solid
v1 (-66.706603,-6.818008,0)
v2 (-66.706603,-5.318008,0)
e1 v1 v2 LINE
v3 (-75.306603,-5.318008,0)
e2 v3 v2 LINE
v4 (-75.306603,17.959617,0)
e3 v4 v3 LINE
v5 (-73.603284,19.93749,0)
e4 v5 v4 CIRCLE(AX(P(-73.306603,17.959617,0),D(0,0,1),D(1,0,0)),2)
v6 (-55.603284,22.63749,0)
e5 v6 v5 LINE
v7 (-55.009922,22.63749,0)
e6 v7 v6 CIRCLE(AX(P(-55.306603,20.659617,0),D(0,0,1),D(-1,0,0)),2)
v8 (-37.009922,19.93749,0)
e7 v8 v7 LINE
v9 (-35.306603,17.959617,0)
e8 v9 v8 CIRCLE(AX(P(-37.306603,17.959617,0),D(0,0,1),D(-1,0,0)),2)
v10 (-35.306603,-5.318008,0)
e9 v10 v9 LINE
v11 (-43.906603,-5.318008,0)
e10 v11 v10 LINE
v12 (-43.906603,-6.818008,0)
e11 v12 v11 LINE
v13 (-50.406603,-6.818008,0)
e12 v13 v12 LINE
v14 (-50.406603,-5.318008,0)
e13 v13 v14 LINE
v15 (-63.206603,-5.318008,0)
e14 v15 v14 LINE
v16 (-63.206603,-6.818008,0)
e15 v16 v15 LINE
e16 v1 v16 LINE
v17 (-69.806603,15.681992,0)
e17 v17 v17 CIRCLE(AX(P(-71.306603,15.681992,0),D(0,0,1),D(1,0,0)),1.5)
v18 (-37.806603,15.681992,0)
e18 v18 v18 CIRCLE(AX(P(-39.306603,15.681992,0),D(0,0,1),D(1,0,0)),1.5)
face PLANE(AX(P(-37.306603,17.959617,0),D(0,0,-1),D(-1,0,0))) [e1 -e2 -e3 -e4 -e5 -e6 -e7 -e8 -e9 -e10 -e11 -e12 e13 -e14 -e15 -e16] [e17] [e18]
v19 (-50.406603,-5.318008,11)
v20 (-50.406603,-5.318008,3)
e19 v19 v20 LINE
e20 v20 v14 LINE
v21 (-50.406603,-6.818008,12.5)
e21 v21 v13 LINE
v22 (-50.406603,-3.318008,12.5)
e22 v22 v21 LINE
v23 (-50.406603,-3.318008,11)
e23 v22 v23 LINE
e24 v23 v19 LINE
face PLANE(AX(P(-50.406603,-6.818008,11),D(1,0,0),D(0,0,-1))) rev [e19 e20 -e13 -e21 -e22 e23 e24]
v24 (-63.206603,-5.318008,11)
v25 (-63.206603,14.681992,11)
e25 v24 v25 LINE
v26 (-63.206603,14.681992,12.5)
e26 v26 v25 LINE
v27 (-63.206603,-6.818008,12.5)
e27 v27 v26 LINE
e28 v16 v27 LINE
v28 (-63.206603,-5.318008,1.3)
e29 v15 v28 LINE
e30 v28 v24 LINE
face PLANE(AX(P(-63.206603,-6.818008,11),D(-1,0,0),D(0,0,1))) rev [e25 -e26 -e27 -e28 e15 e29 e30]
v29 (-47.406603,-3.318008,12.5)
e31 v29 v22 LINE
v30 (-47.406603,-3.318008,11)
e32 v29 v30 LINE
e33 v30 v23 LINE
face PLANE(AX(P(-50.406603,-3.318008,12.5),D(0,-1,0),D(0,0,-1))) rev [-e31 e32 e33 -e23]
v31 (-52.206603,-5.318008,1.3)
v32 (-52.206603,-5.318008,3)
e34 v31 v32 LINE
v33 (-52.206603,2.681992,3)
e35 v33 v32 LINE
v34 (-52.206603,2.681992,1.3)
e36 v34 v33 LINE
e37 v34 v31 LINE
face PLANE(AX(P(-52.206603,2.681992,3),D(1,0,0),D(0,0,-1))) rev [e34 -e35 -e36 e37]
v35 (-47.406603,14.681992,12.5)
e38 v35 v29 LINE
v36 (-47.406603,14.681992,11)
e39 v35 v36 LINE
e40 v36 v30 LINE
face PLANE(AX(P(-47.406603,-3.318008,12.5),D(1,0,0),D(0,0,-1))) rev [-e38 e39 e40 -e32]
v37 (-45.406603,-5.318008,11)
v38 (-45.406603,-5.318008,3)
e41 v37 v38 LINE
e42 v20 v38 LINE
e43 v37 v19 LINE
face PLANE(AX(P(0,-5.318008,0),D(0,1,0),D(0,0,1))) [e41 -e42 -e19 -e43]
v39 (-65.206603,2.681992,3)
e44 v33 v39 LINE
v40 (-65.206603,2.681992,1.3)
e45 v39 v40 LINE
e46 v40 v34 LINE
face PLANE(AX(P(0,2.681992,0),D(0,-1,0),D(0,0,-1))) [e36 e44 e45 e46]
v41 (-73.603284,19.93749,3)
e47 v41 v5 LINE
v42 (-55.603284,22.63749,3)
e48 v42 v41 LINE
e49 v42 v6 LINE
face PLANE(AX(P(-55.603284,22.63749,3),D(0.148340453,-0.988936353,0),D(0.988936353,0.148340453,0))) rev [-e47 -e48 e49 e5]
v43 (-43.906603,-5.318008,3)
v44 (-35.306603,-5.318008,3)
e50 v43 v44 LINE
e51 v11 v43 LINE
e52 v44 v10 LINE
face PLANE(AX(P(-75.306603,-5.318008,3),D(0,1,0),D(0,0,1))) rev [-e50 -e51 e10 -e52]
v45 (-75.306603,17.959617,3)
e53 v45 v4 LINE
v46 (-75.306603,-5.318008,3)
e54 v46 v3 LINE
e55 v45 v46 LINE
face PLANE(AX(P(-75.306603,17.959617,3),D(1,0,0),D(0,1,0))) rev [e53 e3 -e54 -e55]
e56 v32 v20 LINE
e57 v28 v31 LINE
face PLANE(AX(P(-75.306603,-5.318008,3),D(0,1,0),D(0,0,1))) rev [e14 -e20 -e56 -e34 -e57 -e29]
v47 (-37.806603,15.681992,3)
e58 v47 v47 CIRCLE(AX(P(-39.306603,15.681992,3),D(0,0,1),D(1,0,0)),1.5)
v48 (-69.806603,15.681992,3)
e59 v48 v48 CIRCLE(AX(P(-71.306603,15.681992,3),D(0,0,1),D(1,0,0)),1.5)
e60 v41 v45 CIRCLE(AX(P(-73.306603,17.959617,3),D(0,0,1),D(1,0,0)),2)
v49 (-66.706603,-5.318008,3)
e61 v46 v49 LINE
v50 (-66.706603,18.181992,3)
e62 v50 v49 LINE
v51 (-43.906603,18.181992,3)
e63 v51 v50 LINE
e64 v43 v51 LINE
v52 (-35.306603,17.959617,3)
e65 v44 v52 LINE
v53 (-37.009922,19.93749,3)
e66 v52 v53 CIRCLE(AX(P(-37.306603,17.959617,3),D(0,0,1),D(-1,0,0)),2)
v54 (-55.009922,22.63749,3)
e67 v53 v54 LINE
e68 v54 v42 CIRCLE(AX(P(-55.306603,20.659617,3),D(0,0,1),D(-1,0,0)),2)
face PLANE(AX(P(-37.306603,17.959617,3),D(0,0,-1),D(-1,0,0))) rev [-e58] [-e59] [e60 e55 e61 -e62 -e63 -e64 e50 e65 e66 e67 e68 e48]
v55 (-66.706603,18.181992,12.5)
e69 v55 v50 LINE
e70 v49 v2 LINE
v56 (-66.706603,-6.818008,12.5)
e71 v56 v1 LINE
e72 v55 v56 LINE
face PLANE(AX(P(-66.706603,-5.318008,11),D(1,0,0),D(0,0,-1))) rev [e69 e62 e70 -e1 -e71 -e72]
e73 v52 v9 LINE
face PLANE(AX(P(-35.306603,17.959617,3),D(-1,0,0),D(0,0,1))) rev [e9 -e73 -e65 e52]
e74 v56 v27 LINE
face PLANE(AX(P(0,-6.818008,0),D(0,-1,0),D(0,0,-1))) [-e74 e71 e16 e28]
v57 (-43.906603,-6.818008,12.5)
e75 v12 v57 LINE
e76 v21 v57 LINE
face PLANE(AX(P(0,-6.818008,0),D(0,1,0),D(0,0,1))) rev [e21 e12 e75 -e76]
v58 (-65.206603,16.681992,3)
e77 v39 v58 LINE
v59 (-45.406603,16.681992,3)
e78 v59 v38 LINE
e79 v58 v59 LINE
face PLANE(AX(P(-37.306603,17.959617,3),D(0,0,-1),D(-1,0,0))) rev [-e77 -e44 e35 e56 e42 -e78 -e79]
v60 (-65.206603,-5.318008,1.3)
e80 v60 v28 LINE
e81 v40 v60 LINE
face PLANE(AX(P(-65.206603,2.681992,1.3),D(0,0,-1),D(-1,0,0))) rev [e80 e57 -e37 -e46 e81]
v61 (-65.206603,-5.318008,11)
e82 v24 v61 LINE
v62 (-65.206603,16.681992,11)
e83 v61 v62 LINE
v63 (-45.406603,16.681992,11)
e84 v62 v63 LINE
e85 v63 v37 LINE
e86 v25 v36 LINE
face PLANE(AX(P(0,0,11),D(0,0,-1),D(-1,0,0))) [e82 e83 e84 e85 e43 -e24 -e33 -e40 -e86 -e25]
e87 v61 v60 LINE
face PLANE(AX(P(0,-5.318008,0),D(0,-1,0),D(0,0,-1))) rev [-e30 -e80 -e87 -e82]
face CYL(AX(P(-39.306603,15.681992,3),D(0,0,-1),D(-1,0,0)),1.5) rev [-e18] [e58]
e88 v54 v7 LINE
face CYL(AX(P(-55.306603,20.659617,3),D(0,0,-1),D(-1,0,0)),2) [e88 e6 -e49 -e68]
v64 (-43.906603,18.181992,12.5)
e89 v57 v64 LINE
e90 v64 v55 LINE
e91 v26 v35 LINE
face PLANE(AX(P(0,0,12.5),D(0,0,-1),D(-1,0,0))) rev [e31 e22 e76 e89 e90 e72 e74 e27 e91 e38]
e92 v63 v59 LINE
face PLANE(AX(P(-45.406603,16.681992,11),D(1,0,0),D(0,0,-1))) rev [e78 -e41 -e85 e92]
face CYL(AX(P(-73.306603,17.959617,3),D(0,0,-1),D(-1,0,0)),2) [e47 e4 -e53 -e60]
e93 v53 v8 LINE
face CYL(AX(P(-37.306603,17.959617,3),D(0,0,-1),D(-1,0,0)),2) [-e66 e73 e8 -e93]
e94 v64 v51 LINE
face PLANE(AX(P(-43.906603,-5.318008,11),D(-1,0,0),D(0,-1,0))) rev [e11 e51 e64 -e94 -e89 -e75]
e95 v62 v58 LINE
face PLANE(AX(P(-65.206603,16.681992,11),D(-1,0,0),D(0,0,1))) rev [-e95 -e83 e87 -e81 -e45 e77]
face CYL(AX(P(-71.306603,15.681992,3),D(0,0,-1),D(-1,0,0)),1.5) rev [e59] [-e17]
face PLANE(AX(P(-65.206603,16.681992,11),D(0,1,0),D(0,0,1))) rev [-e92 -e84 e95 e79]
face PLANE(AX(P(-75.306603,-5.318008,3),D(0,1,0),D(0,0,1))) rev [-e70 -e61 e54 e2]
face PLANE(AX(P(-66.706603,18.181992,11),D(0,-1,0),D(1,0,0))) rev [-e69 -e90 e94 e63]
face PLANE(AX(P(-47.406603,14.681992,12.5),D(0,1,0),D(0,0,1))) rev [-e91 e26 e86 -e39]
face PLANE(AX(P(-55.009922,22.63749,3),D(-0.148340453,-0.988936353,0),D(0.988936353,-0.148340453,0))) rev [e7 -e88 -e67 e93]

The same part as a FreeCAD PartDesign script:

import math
import FreeCAD as App
import Part
import Sketcher
from FreeCAD import Vector
Q = App.Units.Quantity

doc = App.newDocument("Part")
params = doc.addObject("Spreadsheet::Sheet", "Params")
for row, (alias, value) in enumerate([
    ("sketch1_diameter", "3 mm"),
    ("sketch1_radius", "2 mm"),
    ("sketch1_width", "40 mm"),
    ("pad1_length", "3 mm"),
    ("sketch2_height", "22 mm"),
    ("sketch2_width", "1.5 mm"),
    ("sketch2_width2", "19.8 mm"),
    ("sketch2_height2", "23.5 mm"),
    ("pad2_length", "8 mm"),
    ("sketch3_width", "13 mm"),
    ("sketch3_height", "1.7 mm"),
    ("pocket1_length", "8 mm"),
    ("sketch4_height", "11 mm"),
    ("sketch4_width", "3.5 mm"),
    ("sketch4_width2", "6.5 mm"),
    ("pad3_length", "1.5 mm"),
    ("sketch5_width", "3 mm"),
    ("sketch5_height", "18 mm"),
    ("sketch5_height2", "25 mm"),
    ("sketch5_width2", "15.8 mm"),
    ("sketch5_width3", "6.5 mm"),
    ("pad4_length", "1.5 mm"),
], start=1):
    params.set(f"A{row}", alias)
    params.set(f"B{row}", "=" + value)
    params.setAlias(f"B{row}", alias)

body = doc.addObject("PartDesign::Body", "Body")

sketch1 = body.newObject("Sketcher::SketchObject", "Sketch")
sketch1.AttachmentSupport = (doc.getObject("XY_Plane"), [""])
sketch1.MapMode = "FlatFace"
sketch1.addGeometry(Part.LineSegment(Vector(-55.6, 22.6, 0), Vector(-73.6, 19.9, 0)), False)
sketch1.addGeometry(Part.ArcOfCircle(Part.Circle(Vector(-73.3, 18, 0), Vector(0, 0, 1), 2), math.radians(99), math.radians(180)), False)
sketch1.addGeometry(Part.LineSegment(Vector(-75.3, 18, 0), Vector(-75.3, -5.3, 0)), False)
sketch1.addGeometry(Part.LineSegment(Vector(-75.3, -5.3, 0), Vector(-35.3, -5.3, 0)), False)
sketch1.addGeometry(Part.LineSegment(Vector(-35.3, -5.3, 0), Vector(-35.3, 18, 0)), False)
sketch1.addGeometry(Part.ArcOfCircle(Part.Circle(Vector(-37.3, 18, 0), Vector(0, 0, 1), 2), math.radians(0), math.radians(81)), False)
sketch1.addGeometry(Part.LineSegment(Vector(-37, 19.9, 0), Vector(-55, 22.6, 0)), False)
sketch1.addGeometry(Part.ArcOfCircle(Part.Circle(Vector(-55.3, 20.7, 0), Vector(0, 0, 1), 2), math.radians(81.47), math.radians(98.53)), False)
sketch1.addGeometry(Part.Circle(Vector(-71.3, 15.7, 0), Vector(0, 0, 1), 1.5), False)
sketch1.addGeometry(Part.Circle(Vector(-39.3, 15.7, 0), Vector(0, 0, 1), 1.5), False)
sketch1.addConstraint(Sketcher.Constraint("Tangent", 0, 2, 1, 1))
sketch1.addConstraint(Sketcher.Constraint("Tangent", 1, 2, 2, 1))
sketch1.addConstraint(Sketcher.Constraint("Coincident", 2, 2, 3, 1))
sketch1.addConstraint(Sketcher.Constraint("Coincident", 3, 2, 4, 1))
sketch1.addConstraint(Sketcher.Constraint("Tangent", 4, 2, 5, 1))
sketch1.addConstraint(Sketcher.Constraint("Tangent", 5, 2, 6, 1))
sketch1.addConstraint(Sketcher.Constraint("Tangent", 6, 2, 7, 1))
sketch1.addConstraint(Sketcher.Constraint("Tangent", 7, 2, 0, 1))
sketch1.addConstraint(Sketcher.Constraint("Vertical", 2))
sketch1.addConstraint(Sketcher.Constraint("Horizontal", 3))
sketch1.addConstraint(Sketcher.Constraint("Vertical", 4))
sketch1.addConstraint(Sketcher.Constraint("Equal", 1, 5))
sketch1.addConstraint(Sketcher.Constraint("Equal", 5, 7))
sketch1.addConstraint(Sketcher.Constraint("Equal", 8, 9))
sketch1.addConstraint(Sketcher.Constraint("Horizontal", 1, 3, 5, 3))
sketch1.addConstraint(Sketcher.Constraint("Horizontal", 8, 3, 9, 3))
sketch1.addConstraint(Sketcher.Constraint("Equal", 0, 6))
sketch1.addConstraint(Sketcher.Constraint("Diameter", 8, Q("3 mm")))
sketch1.addConstraint(Sketcher.Constraint("Radius", 1, Q("2 mm")))
sketch1.addConstraint(Sketcher.Constraint("DistanceX", 3, 1, 3, 2, Q("40 mm")))
sketch1.addConstraint(Sketcher.Constraint("DistanceX", 1, 3, 8, 3, Q("2 mm")))
sketch1.addConstraint(Sketcher.Constraint("DistanceX", 9, 3, 5, 3, Q("2 mm")))
sketch1.addConstraint(Sketcher.Constraint("DistanceY", 2, 2, 8, 3, Q("21 mm")))
sketch1.addConstraint(Sketcher.Constraint("DistanceY", 1, 3, 7, 3, Q("2.7 mm")))
sketch1.addConstraint(Sketcher.Constraint("DistanceY", 2, 2, 2, 1, Q("23.277625 mm")))
sketch1.addConstraint(Sketcher.Constraint("DistanceY", -1, 1, 0, 2, Q("19.93749 mm")))
sketch1.addConstraint(Sketcher.Constraint("DistanceX", 5, 2, -1, 1, Q("37.009922 mm")))
sketch1.setExpression("Constraints[17]", "Params.sketch1_diameter")
sketch1.setExpression("Constraints[18]", "Params.sketch1_radius")
sketch1.setExpression("Constraints[19]", "Params.sketch1_width")
pad1 = body.newObject("PartDesign::Pad", "Pad")
pad1.Profile = sketch1
pad1.setExpression("Length", "Params.pad1_length")

sketch2 = body.newObject("Sketcher::SketchObject", "Sketch001")
sketch2.AttachmentSupport = (doc.getObject("XY_Plane"), [""])
sketch2.MapMode = "FlatFace"
sketch2.AttachmentOffset = App.Placement(Vector(0, 0, 3), App.Rotation())
sketch2.addGeometry(Part.LineSegment(Vector(-66.7, -5.3, 0), Vector(-65.2, -5.3, 0)), False)
sketch2.addGeometry(Part.LineSegment(Vector(-65.2, -5.3, 0), Vector(-65.2, 16.7, 0)), False)
sketch2.addGeometry(Part.LineSegment(Vector(-65.2, 16.7, 0), Vector(-45.4, 16.7, 0)), False)
sketch2.addGeometry(Part.LineSegment(Vector(-45.4, 16.7, 0), Vector(-45.4, -5.3, 0)), False)
sketch2.addGeometry(Part.LineSegment(Vector(-45.4, -5.3, 0), Vector(-43.9, -5.3, 0)), False)
sketch2.addGeometry(Part.LineSegment(Vector(-43.9, -5.3, 0), Vector(-43.9, 18.2, 0)), False)
sketch2.addGeometry(Part.LineSegment(Vector(-43.9, 18.2, 0), Vector(-66.7, 18.2, 0)), False)
sketch2.addGeometry(Part.LineSegment(Vector(-66.7, 18.2, 0), Vector(-66.7, -5.3, 0)), False)
sketch2.addConstraint(Sketcher.Constraint("Coincident", 0, 2, 1, 1))
sketch2.addConstraint(Sketcher.Constraint("Coincident", 1, 2, 2, 1))
sketch2.addConstraint(Sketcher.Constraint("Coincident", 2, 2, 3, 1))
sketch2.addConstraint(Sketcher.Constraint("Coincident", 3, 2, 4, 1))
sketch2.addConstraint(Sketcher.Constraint("Coincident", 4, 2, 5, 1))
sketch2.addConstraint(Sketcher.Constraint("Coincident", 5, 2, 6, 1))
sketch2.addConstraint(Sketcher.Constraint("Coincident", 6, 2, 7, 1))
sketch2.addConstraint(Sketcher.Constraint("Coincident", 7, 2, 0, 1))
sketch2.addConstraint(Sketcher.Constraint("Horizontal", 0))
sketch2.addConstraint(Sketcher.Constraint("Vertical", 1))
sketch2.addConstraint(Sketcher.Constraint("Horizontal", 2))
sketch2.addConstraint(Sketcher.Constraint("Vertical", 3))
sketch2.addConstraint(Sketcher.Constraint("Horizontal", 4))
sketch2.addConstraint(Sketcher.Constraint("Vertical", 5))
sketch2.addConstraint(Sketcher.Constraint("Horizontal", 6))
sketch2.addConstraint(Sketcher.Constraint("Vertical", 7))
sketch2.addConstraint(Sketcher.Constraint("Horizontal", 0, 2, 3, 2))
sketch2.addConstraint(Sketcher.Constraint("Equal", 0, 4))
sketch2.addConstraint(Sketcher.Constraint("DistanceY", 1, 1, 1, 2, Q("22 mm")))
sketch2.addConstraint(Sketcher.Constraint("DistanceX", 0, 1, 0, 2, Q("1.5 mm")))
sketch2.addConstraint(Sketcher.Constraint("DistanceX", 2, 1, 2, 2, Q("19.8 mm")))
sketch2.addConstraint(Sketcher.Constraint("DistanceY", 5, 1, 5, 2, Q("23.5 mm")))
sketch2.addConstraint(Sketcher.Constraint("DistanceX", 0, 2, -1, 1, Q("65.206603 mm")))
sketch2.addConstraint(Sketcher.Constraint("DistanceY", 0, 2, -1, 1, Q("5.318008 mm")))
sketch2.setExpression("Constraints[18]", "Params.sketch2_height")
sketch2.setExpression("Constraints[19]", "Params.sketch2_width")
sketch2.setExpression("Constraints[20]", "Params.sketch2_width2")
sketch2.setExpression("Constraints[21]", "Params.sketch2_height2")
pad2 = body.newObject("PartDesign::Pad", "Pad001")
pad2.Profile = sketch2
pad2.setExpression("Length", "Params.pad2_length")

sketch3 = body.newObject("Sketcher::SketchObject", "Sketch002")
sketch3.AttachmentSupport = (doc.getObject("XZ_Plane"), [""])
sketch3.MapMode = "FlatFace"
sketch3.AttachmentOffset = App.Placement(Vector(0, 0, 5.318008), App.Rotation())
sketch3.addGeometry(Part.LineSegment(Vector(-65.2, 3, 0), Vector(-65.2, 1.3, 0)), False)
sketch3.addGeometry(Part.LineSegment(Vector(-65.2, 1.3, 0), Vector(-52.2, 1.3, 0)), False)
sketch3.addGeometry(Part.LineSegment(Vector(-52.2, 1.3, 0), Vector(-52.2, 3, 0)), False)
sketch3.addGeometry(Part.LineSegment(Vector(-52.2, 3, 0), Vector(-65.2, 3, 0)), False)
sketch3.addConstraint(Sketcher.Constraint("Coincident", 0, 2, 1, 1))
sketch3.addConstraint(Sketcher.Constraint("Coincident", 1, 2, 2, 1))
sketch3.addConstraint(Sketcher.Constraint("Coincident", 2, 2, 3, 1))
sketch3.addConstraint(Sketcher.Constraint("Coincident", 3, 2, 0, 1))
sketch3.addConstraint(Sketcher.Constraint("Vertical", 0))
sketch3.addConstraint(Sketcher.Constraint("Horizontal", 1))
sketch3.addConstraint(Sketcher.Constraint("Vertical", 2))
sketch3.addConstraint(Sketcher.Constraint("Horizontal", 3))
sketch3.addConstraint(Sketcher.Constraint("DistanceX", 1, 1, 1, 2, Q("13 mm")))
sketch3.addConstraint(Sketcher.Constraint("DistanceY", 0, 2, 0, 1, Q("1.7 mm")))
sketch3.addConstraint(Sketcher.Constraint("DistanceY", -1, 1, 2, 2, Q("3 mm")))
sketch3.addConstraint(Sketcher.Constraint("DistanceX", 0, 2, -1, 1, Q("65.206603 mm")))
sketch3.setExpression("Constraints[8]", "Params.sketch3_width")
sketch3.setExpression("Constraints[9]", "Params.sketch3_height")
pocket1 = body.newObject("PartDesign::Pocket", "Pocket")
pocket1.Profile = sketch3
pocket1.setExpression("Length", "Params.pocket1_length")

sketch4 = body.newObject("Sketcher::SketchObject", "Sketch003")
sketch4.AttachmentSupport = (doc.getObject("XZ_Plane"), [""])
sketch4.MapMode = "FlatFace"
sketch4.AttachmentOffset = App.Placement(Vector(0, 0, 5.318008), App.Rotation())
sketch4.addGeometry(Part.LineSegment(Vector(-66.7, 11, 0), Vector(-66.7, 0, 0)), False)
sketch4.addGeometry(Part.LineSegment(Vector(-66.7, 0, 0), Vector(-63.2, 0, 0)), False)
sketch4.addGeometry(Part.LineSegment(Vector(-63.2, 0, 0), Vector(-63.2, 11, 0)), False)
sketch4.addGeometry(Part.LineSegment(Vector(-63.2, 11, 0), Vector(-66.7, 11, 0)), False)
sketch4.addGeometry(Part.LineSegment(Vector(-50.4, 11, 0), Vector(-50.4, 0, 0)), False)
sketch4.addGeometry(Part.LineSegment(Vector(-50.4, 0, 0), Vector(-43.9, 0, 0)), False)
sketch4.addGeometry(Part.LineSegment(Vector(-43.9, 0, 0), Vector(-43.9, 11, 0)), False)
sketch4.addGeometry(Part.LineSegment(Vector(-43.9, 11, 0), Vector(-50.4, 11, 0)), False)
sketch4.addConstraint(Sketcher.Constraint("Coincident", 0, 2, 1, 1))
sketch4.addConstraint(Sketcher.Constraint("Coincident", 1, 2, 2, 1))
sketch4.addConstraint(Sketcher.Constraint("Coincident", 2, 2, 3, 1))
sketch4.addConstraint(Sketcher.Constraint("Coincident", 3, 2, 0, 1))
sketch4.addConstraint(Sketcher.Constraint("Coincident", 4, 2, 5, 1))
sketch4.addConstraint(Sketcher.Constraint("Coincident", 5, 2, 6, 1))
sketch4.addConstraint(Sketcher.Constraint("Coincident", 6, 2, 7, 1))
sketch4.addConstraint(Sketcher.Constraint("Coincident", 7, 2, 4, 1))
sketch4.addConstraint(Sketcher.Constraint("Vertical", 0))
sketch4.addConstraint(Sketcher.Constraint("Horizontal", 1))
sketch4.addConstraint(Sketcher.Constraint("Vertical", 2))
sketch4.addConstraint(Sketcher.Constraint("Horizontal", 3))
sketch4.addConstraint(Sketcher.Constraint("Vertical", 4))
sketch4.addConstraint(Sketcher.Constraint("Horizontal", 5))
sketch4.addConstraint(Sketcher.Constraint("Vertical", 6))
sketch4.addConstraint(Sketcher.Constraint("Horizontal", 7))
sketch4.addConstraint(Sketcher.Constraint("PointOnObject", 0, 2, -1))
sketch4.addConstraint(Sketcher.Constraint("PointOnObject", 4, 2, -1))
sketch4.addConstraint(Sketcher.Constraint("Horizontal", 3, 2, 6, 2))
sketch4.addConstraint(Sketcher.Constraint("DistanceY", 0, 2, 0, 1, Q("11 mm")))
sketch4.addConstraint(Sketcher.Constraint("DistanceX", 1, 1, 1, 2, Q("3.5 mm")))
sketch4.addConstraint(Sketcher.Constraint("DistanceX", 5, 1, 5, 2, Q("6.5 mm")))
sketch4.addConstraint(Sketcher.Constraint("DistanceX", 1, 2, 4, 2, Q("12.8 mm")))
sketch4.addConstraint(Sketcher.Constraint("DistanceX", 0, 2, -1, 1, Q("66.706603 mm")))
sketch4.setExpression("Constraints[19]", "Params.sketch4_height")
sketch4.setExpression("Constraints[20]", "Params.sketch4_width")
sketch4.setExpression("Constraints[21]", "Params.sketch4_width2")
pad3 = body.newObject("PartDesign::Pad", "Pad002")
pad3.Profile = sketch4
pad3.setExpression("Length", "Params.pad3_length")

sketch5 = body.newObject("Sketcher::SketchObject", "Sketch004")
sketch5.AttachmentSupport = (doc.getObject("XY_Plane"), [""])
sketch5.MapMode = "FlatFace"
sketch5.AttachmentOffset = App.Placement(Vector(0, 0, 11), App.Rotation())
sketch5.addGeometry(Part.LineSegment(Vector(-63.2, -6.8, 0), Vector(-63.2, 14.7, 0)), False)
sketch5.addGeometry(Part.LineSegment(Vector(-63.2, 14.7, 0), Vector(-47.4, 14.7, 0)), False)
sketch5.addGeometry(Part.LineSegment(Vector(-47.4, 14.7, 0), Vector(-47.4, -3.3, 0)), False)
sketch5.addGeometry(Part.LineSegment(Vector(-47.4, -3.3, 0), Vector(-50.4, -3.3, 0)), False)
sketch5.addGeometry(Part.LineSegment(Vector(-50.4, -3.3, 0), Vector(-50.4, -6.8, 0)), False)
sketch5.addGeometry(Part.LineSegment(Vector(-50.4, -6.8, 0), Vector(-43.9, -6.8, 0)), False)
sketch5.addGeometry(Part.LineSegment(Vector(-43.9, -6.8, 0), Vector(-43.9, 18.2, 0)), False)
sketch5.addGeometry(Part.LineSegment(Vector(-43.9, 18.2, 0), Vector(-66.7, 18.2, 0)), False)
sketch5.addGeometry(Part.LineSegment(Vector(-66.7, 18.2, 0), Vector(-66.7, -6.8, 0)), False)
sketch5.addGeometry(Part.LineSegment(Vector(-66.7, -6.8, 0), Vector(-63.2, -6.8, 0)), False)
sketch5.addConstraint(Sketcher.Constraint("Coincident", 0, 2, 1, 1))
sketch5.addConstraint(Sketcher.Constraint("Coincident", 1, 2, 2, 1))
sketch5.addConstraint(Sketcher.Constraint("Coincident", 2, 2, 3, 1))
sketch5.addConstraint(Sketcher.Constraint("Coincident", 3, 2, 4, 1))
sketch5.addConstraint(Sketcher.Constraint("Coincident", 4, 2, 5, 1))
sketch5.addConstraint(Sketcher.Constraint("Coincident", 5, 2, 6, 1))
sketch5.addConstraint(Sketcher.Constraint("Coincident", 6, 2, 7, 1))
sketch5.addConstraint(Sketcher.Constraint("Coincident", 7, 2, 8, 1))
sketch5.addConstraint(Sketcher.Constraint("Coincident", 8, 2, 9, 1))
sketch5.addConstraint(Sketcher.Constraint("Coincident", 9, 2, 0, 1))
sketch5.addConstraint(Sketcher.Constraint("Vertical", 0))
sketch5.addConstraint(Sketcher.Constraint("Horizontal", 1))
sketch5.addConstraint(Sketcher.Constraint("Vertical", 2))
sketch5.addConstraint(Sketcher.Constraint("Horizontal", 3))
sketch5.addConstraint(Sketcher.Constraint("Vertical", 4))
sketch5.addConstraint(Sketcher.Constraint("Horizontal", 5))
sketch5.addConstraint(Sketcher.Constraint("Vertical", 6))
sketch5.addConstraint(Sketcher.Constraint("Horizontal", 7))
sketch5.addConstraint(Sketcher.Constraint("Vertical", 8))
sketch5.addConstraint(Sketcher.Constraint("Horizontal", 9))
sketch5.addConstraint(Sketcher.Constraint("Horizontal", 5, 2, 8, 2))
sketch5.addConstraint(Sketcher.Constraint("Equal", 9, 4))
sketch5.addConstraint(Sketcher.Constraint("DistanceX", 3, 2, 3, 1, Q("3 mm")))
sketch5.addConstraint(Sketcher.Constraint("DistanceY", 2, 2, 2, 1, Q("18 mm")))
sketch5.addConstraint(Sketcher.Constraint("DistanceY", 6, 1, 6, 2, Q("25 mm")))
sketch5.addConstraint(Sketcher.Constraint("DistanceX", 1, 1, 1, 2, Q("15.8 mm")))
sketch5.addConstraint(Sketcher.Constraint("DistanceX", 5, 1, 5, 2, Q("6.5 mm")))
sketch5.addConstraint(Sketcher.Constraint("DistanceX", 7, 2, 7, 1, Q("22.8 mm")))
sketch5.addConstraint(Sketcher.Constraint("DistanceX", 0, 2, -1, 1, Q("63.206603 mm")))
sketch5.addConstraint(Sketcher.Constraint("DistanceY", -1, 1, 0, 2, Q("14.681992 mm")))
sketch5.setExpression("Constraints[22]", "Params.sketch5_width")
sketch5.setExpression("Constraints[23]", "Params.sketch5_height")
sketch5.setExpression("Constraints[24]", "Params.sketch5_height2")
sketch5.setExpression("Constraints[25]", "Params.sketch5_width2")
sketch5.setExpression("Constraints[26]", "Params.sketch5_width3")
pad4 = body.newObject("PartDesign::Pad", "Pad003")
pad4.Profile = sketch5
pad4.setExpression("Length", "Params.pad4_length")

doc.recompute()
